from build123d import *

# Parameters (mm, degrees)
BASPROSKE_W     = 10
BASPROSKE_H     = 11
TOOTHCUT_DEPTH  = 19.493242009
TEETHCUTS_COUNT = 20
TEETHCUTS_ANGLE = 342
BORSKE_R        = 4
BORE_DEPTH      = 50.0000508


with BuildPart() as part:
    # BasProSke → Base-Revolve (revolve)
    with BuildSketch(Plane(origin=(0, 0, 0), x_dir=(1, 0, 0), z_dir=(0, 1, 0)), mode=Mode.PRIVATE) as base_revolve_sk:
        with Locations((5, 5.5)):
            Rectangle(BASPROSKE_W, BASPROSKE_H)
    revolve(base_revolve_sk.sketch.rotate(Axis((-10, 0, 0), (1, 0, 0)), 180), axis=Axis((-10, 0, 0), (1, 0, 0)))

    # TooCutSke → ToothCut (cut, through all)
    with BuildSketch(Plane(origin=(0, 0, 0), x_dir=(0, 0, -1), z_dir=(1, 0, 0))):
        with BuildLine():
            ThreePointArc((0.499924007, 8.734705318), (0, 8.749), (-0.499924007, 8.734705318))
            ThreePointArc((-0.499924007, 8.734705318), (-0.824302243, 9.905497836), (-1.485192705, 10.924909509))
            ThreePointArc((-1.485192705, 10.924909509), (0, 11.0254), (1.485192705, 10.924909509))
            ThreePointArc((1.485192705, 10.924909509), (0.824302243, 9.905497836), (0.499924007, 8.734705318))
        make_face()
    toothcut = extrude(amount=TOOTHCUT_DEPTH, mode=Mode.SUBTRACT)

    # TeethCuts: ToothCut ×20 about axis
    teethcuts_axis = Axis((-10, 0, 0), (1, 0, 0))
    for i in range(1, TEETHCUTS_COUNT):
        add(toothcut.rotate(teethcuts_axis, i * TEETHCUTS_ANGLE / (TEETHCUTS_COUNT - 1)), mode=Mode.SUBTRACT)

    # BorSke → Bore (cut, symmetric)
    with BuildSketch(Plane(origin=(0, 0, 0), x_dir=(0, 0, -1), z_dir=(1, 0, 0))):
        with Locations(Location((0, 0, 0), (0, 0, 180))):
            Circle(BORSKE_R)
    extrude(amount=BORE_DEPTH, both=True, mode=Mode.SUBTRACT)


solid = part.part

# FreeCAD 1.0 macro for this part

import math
import FreeCAD as App
import Part
import Sketcher
Q = App.Units.Quantity

doc = App.newDocument("Part")
body = doc.addObject("PartDesign::Body", "Body")

# Sketch on XZ plane
sketch1 = body.newObject("Sketcher::SketchObject", "Sketch")
sketch1.AttachmentSupport = (doc.getObject("XZ_Plane"), [""])
sketch1.MapMode = "FlatFace"
sketch1.addGeometry(Part.LineSegment(App.Vector(0, -11, 0), App.Vector(0, 0, 0)), False)
sketch1.addGeometry(Part.LineSegment(App.Vector(0, 0, 0), App.Vector(10, 0, 0)), False)
sketch1.addGeometry(Part.LineSegment(App.Vector(10, 0, 0), App.Vector(10, -11, 0)), False)
sketch1.addGeometry(Part.LineSegment(App.Vector(10, -11, 0), App.Vector(0, -11, 0)), False)
sketch1.addConstraint(Sketcher.Constraint("Coincident", 0, 2, 1, 1))
sketch1.addConstraint(Sketcher.Constraint("Coincident", 1, 2, 2, 1))
sketch1.addConstraint(Sketcher.Constraint("Coincident", 2, 2, 3, 1))
sketch1.addConstraint(Sketcher.Constraint("Coincident", 3, 2, 0, 1))
sketch1.addConstraint(Sketcher.Constraint("Vertical", 0))
sketch1.addConstraint(Sketcher.Constraint("Horizontal", 1))
sketch1.addConstraint(Sketcher.Constraint("Vertical", 2))
sketch1.addConstraint(Sketcher.Constraint("Horizontal", 3))
sketch1.addConstraint(Sketcher.Constraint("Coincident", 0, 2, -1, 1))
sketch1.addConstraint(Sketcher.Constraint("DistanceX", 1, 1, 1, 2, Q("10 mm")))
sketch1.addConstraint(Sketcher.Constraint("DistanceY", 0, 1, 0, 2, Q("11 mm")))
revolution = body.newObject("PartDesign::Revolution", "Revolution")
revolution.Profile = sketch1
revolution.ReferenceAxis = (sketch1, ["H_Axis"])
revolution.Angle = 360

# Sketch on YZ plane
sketch2 = body.newObject("Sketcher::SketchObject", "Sketch001")
sketch2.AttachmentSupport = (doc.getObject("YZ_Plane"), [""])
sketch2.MapMode = "FlatFace"
sketch2.addGeometry(Part.ArcOfCircle(Part.Circle(App.Vector(0, 0, 0), App.Vector(0, 0, 1), 8.7), math.radians(-3.28), math.radians(3.28)), False)
sketch2.addGeometry(Part.ArcOfCircle(Part.Circle(App.Vector(8.3, -4.5, 0), App.Vector(0, 0, 1), 4), math.radians(48), math.radians(83)), False)
sketch2.addGeometry(Part.ArcOfCircle(Part.Circle(App.Vector(0, 0, 0), App.Vector(0, 0, 1), 11), math.radians(-7.74), math.radians(7.74)), False)
sketch2.addGeometry(Part.ArcOfCircle(Part.Circle(App.Vector(8.3, 4.5, 0), App.Vector(0, 0, 1), 4), math.radians(-83), math.radians(-48)), False)
sketch2.addConstraint(Sketcher.Constraint("Coincident", 0, 1, 1, 2))
sketch2.addConstraint(Sketcher.Constraint("Coincident", 1, 1, 2, 1))
sketch2.addConstraint(Sketcher.Constraint("Coincident", 2, 2, 3, 2))
sketch2.addConstraint(Sketcher.Constraint("Coincident", 3, 1, 0, 2))
sketch2.addConstraint(Sketcher.Constraint("Coincident", 0, 3, -1, 1))
sketch2.addConstraint(Sketcher.Constraint("Coincident", 2, 3, -1, 1))
sketch2.addConstraint(Sketcher.Constraint("Equal", 1, 3))
sketch2.addConstraint(Sketcher.Constraint("Symmetric", 1, 3, 3, 3, -1))
sketch2.addConstraint(Sketcher.Constraint("Radius", 1, Q("4 mm")))
sketch2.addConstraint(Sketcher.Constraint("Radius", 0, Q("8.749 mm")))
sketch2.addConstraint(Sketcher.Constraint("Radius", 2, Q("11.0254 mm")))
sketch2.addConstraint(Sketcher.Constraint("DistanceY", 1, 3, -1, 1, Q("4.47219 mm")))
sketch2.addConstraint(Sketcher.Constraint("DistanceX", -1, 1, 1, 1, Q("10.92491 mm")))
pocket1 = body.newObject("PartDesign::Pocket", "Pocket")
pocket1.Profile = sketch2
pocket1.Type = "ThroughAll"
pocket1.Reversed = True
doc.recompute()

polarpattern = body.newObject("PartDesign::PolarPattern", "PolarPattern")
polarpattern.Originals = [pocket1]
polarpattern.Axis = (doc.getObject("X_Axis"), [""])
polarpattern.Angle = 360
polarpattern.Occurrences = 20
body.Tip = polarpattern

# Sketch on YZ plane
sketch3 = body.newObject("Sketcher::SketchObject", "Sketch002")
sketch3.AttachmentSupport = (doc.getObject("YZ_Plane"), [""])
sketch3.MapMode = "FlatFace"
sketch3.addGeometry(Part.Circle(App.Vector(0, 0, 0), App.Vector(0, 0, 1), 4), False)
sketch3.addConstraint(Sketcher.Constraint("Coincident", 0, 3, -1, 1))
sketch3.addConstraint(Sketcher.Constraint("Diameter", 0, Q("8 mm")))
pocket2 = body.newObject("PartDesign::Pocket", "Pocket001")
pocket2.Profile = sketch3
pocket2.Length = 100.000102
pocket2.Midplane = True

doc.recompute()
